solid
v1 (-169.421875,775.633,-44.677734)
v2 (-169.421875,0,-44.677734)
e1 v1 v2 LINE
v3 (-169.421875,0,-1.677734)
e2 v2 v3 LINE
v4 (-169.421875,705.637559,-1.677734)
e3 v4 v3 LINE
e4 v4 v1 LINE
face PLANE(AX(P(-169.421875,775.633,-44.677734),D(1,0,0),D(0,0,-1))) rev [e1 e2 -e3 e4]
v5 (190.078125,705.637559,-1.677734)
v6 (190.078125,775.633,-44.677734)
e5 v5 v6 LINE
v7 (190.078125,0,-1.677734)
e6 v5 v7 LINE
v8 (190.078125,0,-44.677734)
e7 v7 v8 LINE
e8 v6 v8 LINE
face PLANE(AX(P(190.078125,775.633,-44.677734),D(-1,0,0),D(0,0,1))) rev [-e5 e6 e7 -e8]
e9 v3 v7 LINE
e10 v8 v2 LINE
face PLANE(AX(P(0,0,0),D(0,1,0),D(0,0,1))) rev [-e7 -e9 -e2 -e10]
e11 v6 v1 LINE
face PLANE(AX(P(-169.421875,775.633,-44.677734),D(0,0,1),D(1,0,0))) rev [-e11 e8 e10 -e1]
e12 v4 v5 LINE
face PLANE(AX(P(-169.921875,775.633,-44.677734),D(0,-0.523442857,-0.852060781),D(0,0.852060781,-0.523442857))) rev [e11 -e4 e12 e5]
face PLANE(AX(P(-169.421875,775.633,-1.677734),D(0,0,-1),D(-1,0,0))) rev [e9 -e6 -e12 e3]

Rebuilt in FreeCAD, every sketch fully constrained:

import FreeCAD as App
import Part
import Sketcher

V = App.Vector


def add_polygon(sketch, points):
    """Adds a closed chain of lines whose ends are joined by coincident constraints."""
    first, n = sketch.GeometryCount, len(points)
    for a, b in zip(points, points[1:] + points[:1]):
        sketch.addGeometry(Part.LineSegment(App.Vector(*a, 0), App.Vector(*b, 0)), False)
    for i in range(n):
        sketch.addConstraint(Sketcher.Constraint("Coincident", first + i, 2, first + (i + 1) % n, 1))

doc = App.newDocument("Part")
body = doc.addObject("PartDesign::Body", "Body")

# Sketch on XZ plane
sketch1 = body.newObject("Sketcher::SketchObject", "Sketch")
sketch1.AttachmentSupport = (doc.getObject("XZ_Plane"), [""])
sketch1.MapMode = "FlatFace"
add_polygon(sketch1, [(-169.421875, -44.677734), (-169.421875, -1.677734), (190.078125, -1.677734), (190.078125, -44.677734)])  # lines 0-3
sketch1.addConstraint(Sketcher.Constraint("Vertical", 0))
sketch1.addConstraint(Sketcher.Constraint("Horizontal", 1))
sketch1.addConstraint(Sketcher.Constraint("Vertical", 2))
sketch1.addConstraint(Sketcher.Constraint("Horizontal", 3))
sketch1.addConstraint(Sketcher.Constraint("DistanceY", 0, 1, 0, 2, 43.0))
sketch1.addConstraint(Sketcher.Constraint("DistanceX", 1, 1, 1, 2, 359.5))
sketch1.addConstraint(Sketcher.Constraint("DistanceX", 0, 2, -1, 1, 169.421875))
sketch1.addConstraint(Sketcher.Constraint("DistanceY", 0, 2, -1, 1, 1.677734))
pad1 = body.newObject("PartDesign::Pad", "Pad")
pad1.Profile = sketch1
pad1.Length = 775.633
pad1.Reversed = True

# Sketch on YZ plane
sketch2 = body.newObject("Sketcher::SketchObject", "Sketch001")
sketch2.AttachmentSupport = (doc.getObject("YZ_Plane"), [""])
sketch2.MapMode = "FlatFace"
sketch2.AttachmentOffset = App.Placement(V(0, 0, 190.078125), App.Rotation())
add_polygon(sketch2, [(705.637559, -1.677734), (775.633, -44.677734), (775.633, -1.677734)])  # lines 0-2
sketch2.addConstraint(Sketcher.Constraint("Vertical", 1))
sketch2.addConstraint(Sketcher.Constraint("Horizontal", 2))
sketch2.addConstraint(Sketcher.Constraint("DistanceY", 1, 1, 1, 2, 43.0))
sketch2.addConstraint(Sketcher.Constraint("DistanceX", -1, 1, 0, 2, 775.633))
sketch2.addConstraint(Sketcher.Constraint("DistanceX", 2, 2, 2, 1, 69.995441))
sketch2.addConstraint(Sketcher.Constraint("DistanceY", 0, 2, -1, 1, 44.677734))
pocket1 = body.newObject("PartDesign::Pocket", "Pocket")
pocket1.Profile = sketch2
pocket1.Length = 360

doc.recompute()
